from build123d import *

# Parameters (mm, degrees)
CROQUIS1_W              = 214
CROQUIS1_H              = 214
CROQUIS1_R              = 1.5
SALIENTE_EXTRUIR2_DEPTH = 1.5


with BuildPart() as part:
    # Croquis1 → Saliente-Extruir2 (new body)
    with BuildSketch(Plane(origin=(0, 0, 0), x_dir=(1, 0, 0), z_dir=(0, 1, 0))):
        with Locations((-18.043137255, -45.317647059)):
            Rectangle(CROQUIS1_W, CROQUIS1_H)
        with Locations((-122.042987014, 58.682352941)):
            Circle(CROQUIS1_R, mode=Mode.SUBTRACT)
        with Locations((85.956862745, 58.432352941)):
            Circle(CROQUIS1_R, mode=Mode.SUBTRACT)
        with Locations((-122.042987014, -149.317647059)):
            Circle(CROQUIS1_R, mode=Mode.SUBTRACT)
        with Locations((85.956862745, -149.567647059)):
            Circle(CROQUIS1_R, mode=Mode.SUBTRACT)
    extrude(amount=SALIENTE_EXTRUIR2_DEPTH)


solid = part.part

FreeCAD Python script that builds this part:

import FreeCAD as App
import Part
import Sketcher

V = App.Vector
Q = App.Units.Quantity

doc = App.newDocument("Part")
body = doc.addObject("PartDesign::Body", "Body")

sketch1 = doc.addObject("Sketcher::SketchObject", "Sketch")
body.addObject(sketch1)
sketch1.AttachmentSupport = (doc.XZ_Plane, [""])
sketch1.MapMode = "FlatFace"
sketch1.addGeometry([
    Part.LineSegment(V(-125.043137, -61.682353, 0), V(-125.043137, 152.317647, 0)),
    Part.LineSegment(V(-125.043137, 152.317647, 0), V(88.956863, 152.317647, 0)),
    Part.LineSegment(V(88.956863, 152.317647, 0), V(88.956863, -61.682353, 0)),
    Part.LineSegment(V(88.956863, -61.682353, 0), V(-125.043137, -61.682353, 0)),
    Part.Circle(V(-122.042987, 149.317647, 0), V(0, 0, 1), 1.5),
    Part.Circle(V(85.956863, 149.567647, 0), V(0, 0, 1), 1.5),
    Part.Circle(V(-122.042987, -58.682353, 0), V(0, 0, 1), 1.5),
    Part.Circle(V(85.956863, -58.432353, 0), V(0, 0, 1), 1.5),
], False)
sketch1.addConstraint([
    Sketcher.Constraint("Coincident", 0, 2, 1, 1),
    Sketcher.Constraint("Coincident", 1, 2, 2, 1),
    Sketcher.Constraint("Coincident", 2, 2, 3, 1),
    Sketcher.Constraint("Coincident", 3, 2, 0, 1),
    Sketcher.Constraint("Vertical", 0),
    Sketcher.Constraint("Horizontal", 1),
    Sketcher.Constraint("Vertical", 2),
    Sketcher.Constraint("Horizontal", 3),
    Sketcher.Constraint("Equal", 4, 5),
    Sketcher.Constraint("Equal", 5, 6),
    Sketcher.Constraint("Equal", 6, 7),
    Sketcher.Constraint("Vertical", 4, 3, 6, 3),
    Sketcher.Constraint("Vertical", 5, 3, 7, 3),
    Sketcher.Constraint("Equal", 3, 0),
    Sketcher.Constraint("Diameter", 4, Q("3 mm")),
    Sketcher.Constraint("DistanceX", 1, 1, 1, 2, Q("214 mm")),
    Sketcher.Constraint("DistanceY", 6, 3, 4, 3, Q("208 mm")),
    Sketcher.Constraint("DistanceY", 7, 3, 5, 3, Q("208 mm")),
    Sketcher.Constraint("DistanceY", 4, 3, 0, 2, Q("3 mm")),
    Sketcher.Constraint("DistanceX", 0, 2, 5, 3, Q("211 mm")),
    Sketcher.Constraint("DistanceY", 4, 3, 5, 3, Q("0.25 mm")),
    Sketcher.Constraint("DistanceX", 4, 3, 5, 3, Q("207.99985 mm")),
    Sketcher.Constraint("DistanceX", 4, 3, -1, 1, Q("122.042987 mm")),
    Sketcher.Constraint("DistanceY", -1, 1, 4, 3, Q("149.317647 mm")),
])
pad1 = doc.addObject("PartDesign::Pad", "Pad")
body.addObject(pad1)
pad1.Profile = sketch1
pad1.Length = 1.5
pad1.Reversed = True

doc.recompute()
